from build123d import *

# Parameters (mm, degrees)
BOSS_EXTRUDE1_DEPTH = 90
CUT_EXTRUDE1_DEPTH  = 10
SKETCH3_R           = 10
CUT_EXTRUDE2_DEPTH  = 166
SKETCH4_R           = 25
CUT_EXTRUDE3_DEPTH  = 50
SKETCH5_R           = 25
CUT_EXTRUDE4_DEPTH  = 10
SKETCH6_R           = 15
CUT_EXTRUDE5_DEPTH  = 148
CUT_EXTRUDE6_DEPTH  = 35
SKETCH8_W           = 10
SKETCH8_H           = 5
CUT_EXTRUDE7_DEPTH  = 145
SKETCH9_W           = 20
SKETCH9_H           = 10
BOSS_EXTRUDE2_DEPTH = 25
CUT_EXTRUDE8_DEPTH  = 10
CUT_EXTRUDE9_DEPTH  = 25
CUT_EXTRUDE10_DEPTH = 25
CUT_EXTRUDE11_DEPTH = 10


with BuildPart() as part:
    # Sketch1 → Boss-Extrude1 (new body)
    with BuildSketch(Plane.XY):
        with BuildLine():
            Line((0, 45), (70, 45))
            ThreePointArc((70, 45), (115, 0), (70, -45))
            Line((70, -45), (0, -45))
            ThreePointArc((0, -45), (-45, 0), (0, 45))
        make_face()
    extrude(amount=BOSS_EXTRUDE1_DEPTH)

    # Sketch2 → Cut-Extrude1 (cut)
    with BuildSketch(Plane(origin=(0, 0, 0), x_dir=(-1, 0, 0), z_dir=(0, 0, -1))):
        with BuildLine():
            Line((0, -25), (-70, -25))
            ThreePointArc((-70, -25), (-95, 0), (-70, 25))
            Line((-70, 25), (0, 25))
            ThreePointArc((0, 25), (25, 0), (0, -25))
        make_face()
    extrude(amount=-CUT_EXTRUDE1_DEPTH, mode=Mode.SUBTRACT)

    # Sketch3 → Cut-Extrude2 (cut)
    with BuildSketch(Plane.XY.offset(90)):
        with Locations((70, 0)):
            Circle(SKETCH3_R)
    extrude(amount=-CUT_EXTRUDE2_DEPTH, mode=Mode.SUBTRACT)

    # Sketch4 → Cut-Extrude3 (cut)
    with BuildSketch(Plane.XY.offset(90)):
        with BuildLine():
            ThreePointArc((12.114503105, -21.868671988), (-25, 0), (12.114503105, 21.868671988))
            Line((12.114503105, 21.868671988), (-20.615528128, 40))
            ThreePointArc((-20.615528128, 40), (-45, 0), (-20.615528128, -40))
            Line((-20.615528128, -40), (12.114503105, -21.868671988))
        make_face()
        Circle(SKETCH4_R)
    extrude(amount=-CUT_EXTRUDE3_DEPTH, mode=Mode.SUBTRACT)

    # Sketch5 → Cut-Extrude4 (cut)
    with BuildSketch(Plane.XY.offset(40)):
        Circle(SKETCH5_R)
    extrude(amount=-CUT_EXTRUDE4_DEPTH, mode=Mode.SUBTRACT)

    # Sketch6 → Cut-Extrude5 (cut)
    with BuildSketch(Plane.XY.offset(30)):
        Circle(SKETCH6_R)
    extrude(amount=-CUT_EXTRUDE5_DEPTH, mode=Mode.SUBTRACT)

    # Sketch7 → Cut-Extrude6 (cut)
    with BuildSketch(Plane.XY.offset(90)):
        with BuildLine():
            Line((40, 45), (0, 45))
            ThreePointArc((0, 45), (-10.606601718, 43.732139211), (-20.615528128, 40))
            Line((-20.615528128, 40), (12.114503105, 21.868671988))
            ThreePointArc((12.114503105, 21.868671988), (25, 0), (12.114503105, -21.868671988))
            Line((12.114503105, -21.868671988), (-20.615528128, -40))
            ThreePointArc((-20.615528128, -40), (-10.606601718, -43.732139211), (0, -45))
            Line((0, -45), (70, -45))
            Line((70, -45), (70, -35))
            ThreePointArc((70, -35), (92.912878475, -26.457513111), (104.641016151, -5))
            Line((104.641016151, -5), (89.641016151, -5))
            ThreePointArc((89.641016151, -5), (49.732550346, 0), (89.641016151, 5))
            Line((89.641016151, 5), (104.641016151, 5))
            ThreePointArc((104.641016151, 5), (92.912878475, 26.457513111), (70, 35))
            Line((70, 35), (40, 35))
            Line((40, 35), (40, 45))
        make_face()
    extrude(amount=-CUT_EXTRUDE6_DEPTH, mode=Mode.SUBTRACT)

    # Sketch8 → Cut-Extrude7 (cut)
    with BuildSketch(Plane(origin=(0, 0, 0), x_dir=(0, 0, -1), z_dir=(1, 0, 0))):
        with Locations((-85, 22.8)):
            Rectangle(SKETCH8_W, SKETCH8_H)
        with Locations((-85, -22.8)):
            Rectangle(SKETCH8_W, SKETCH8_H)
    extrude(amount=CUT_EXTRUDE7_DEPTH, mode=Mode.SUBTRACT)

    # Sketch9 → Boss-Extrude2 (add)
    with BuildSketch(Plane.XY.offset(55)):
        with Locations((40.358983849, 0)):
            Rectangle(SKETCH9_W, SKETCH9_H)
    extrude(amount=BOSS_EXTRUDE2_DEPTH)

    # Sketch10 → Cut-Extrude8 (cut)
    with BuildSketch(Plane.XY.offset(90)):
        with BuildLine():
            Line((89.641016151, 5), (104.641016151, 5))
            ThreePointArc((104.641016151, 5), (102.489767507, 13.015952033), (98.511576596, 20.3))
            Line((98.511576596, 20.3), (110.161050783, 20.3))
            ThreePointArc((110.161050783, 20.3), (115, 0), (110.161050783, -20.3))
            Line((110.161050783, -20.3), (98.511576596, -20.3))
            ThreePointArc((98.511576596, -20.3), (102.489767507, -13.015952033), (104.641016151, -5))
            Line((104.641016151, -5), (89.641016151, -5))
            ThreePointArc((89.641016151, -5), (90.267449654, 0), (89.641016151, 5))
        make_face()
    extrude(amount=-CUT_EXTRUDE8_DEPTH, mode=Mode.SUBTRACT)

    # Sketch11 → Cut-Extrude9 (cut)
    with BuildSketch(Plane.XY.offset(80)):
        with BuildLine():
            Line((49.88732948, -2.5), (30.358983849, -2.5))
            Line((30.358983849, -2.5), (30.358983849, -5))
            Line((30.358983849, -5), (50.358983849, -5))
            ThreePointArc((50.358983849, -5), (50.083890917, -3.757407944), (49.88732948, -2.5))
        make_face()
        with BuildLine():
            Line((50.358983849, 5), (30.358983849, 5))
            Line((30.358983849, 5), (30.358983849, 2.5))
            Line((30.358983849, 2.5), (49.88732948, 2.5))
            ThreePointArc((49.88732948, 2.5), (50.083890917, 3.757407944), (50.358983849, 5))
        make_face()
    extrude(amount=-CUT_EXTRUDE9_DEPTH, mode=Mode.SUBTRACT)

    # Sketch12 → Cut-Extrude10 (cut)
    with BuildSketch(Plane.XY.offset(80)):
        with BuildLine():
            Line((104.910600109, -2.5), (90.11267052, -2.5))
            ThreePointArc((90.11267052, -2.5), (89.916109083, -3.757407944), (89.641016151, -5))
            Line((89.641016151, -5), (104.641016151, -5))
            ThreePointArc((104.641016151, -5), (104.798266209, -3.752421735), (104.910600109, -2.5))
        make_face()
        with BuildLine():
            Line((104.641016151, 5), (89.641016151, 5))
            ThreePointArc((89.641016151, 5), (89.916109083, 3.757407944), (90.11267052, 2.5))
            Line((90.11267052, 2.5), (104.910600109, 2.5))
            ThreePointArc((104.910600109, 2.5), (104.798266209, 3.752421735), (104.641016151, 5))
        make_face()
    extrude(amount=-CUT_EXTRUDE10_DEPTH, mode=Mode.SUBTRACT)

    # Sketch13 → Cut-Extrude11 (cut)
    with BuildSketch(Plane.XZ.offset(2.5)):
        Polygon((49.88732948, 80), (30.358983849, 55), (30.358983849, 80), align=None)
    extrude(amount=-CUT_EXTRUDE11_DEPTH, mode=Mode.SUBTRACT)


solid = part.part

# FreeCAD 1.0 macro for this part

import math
import FreeCAD as App
import Part
import Sketcher
Q = App.Units.Quantity

doc = App.newDocument("Part")
body = doc.addObject("PartDesign::Body", "Body")

sketch1 = body.newObject("Sketcher::SketchObject", "Sketch")
sketch1.AttachmentSupport = (doc.getObject("XY_Plane"), [""])
sketch1.MapMode = "FlatFace"
sketch1.addGeometry(Part.LineSegment(App.Vector(70, 45, 0), App.Vector(0, 45, 0)), False)
sketch1.addGeometry(Part.ArcOfCircle(Part.Circle(App.Vector(0, 0, 0), App.Vector(0, 0, 1), 45), math.radians(90), math.radians(270)), False)
sketch1.addGeometry(Part.LineSegment(App.Vector(0, -45, 0), App.Vector(70, -45, 0)), False)
sketch1.addGeometry(Part.ArcOfCircle(Part.Circle(App.Vector(70, 0, 0), App.Vector(0, 0, 1), 45), math.radians(-90), math.radians(90)), False)
sketch1.addConstraint(Sketcher.Constraint("Tangent", 0, 2, 1, 1))
sketch1.addConstraint(Sketcher.Constraint("Tangent", 1, 2, 2, 1))
sketch1.addConstraint(Sketcher.Constraint("Tangent", 2, 2, 3, 1))
sketch1.addConstraint(Sketcher.Constraint("Tangent", 3, 2, 0, 1))
sketch1.addConstraint(Sketcher.Constraint("Horizontal", 0))
sketch1.addConstraint(Sketcher.Constraint("Horizontal", 2))
sketch1.addConstraint(Sketcher.Constraint("Coincident", 1, 3, -1, 1))
sketch1.addConstraint(Sketcher.Constraint("Radius", 1, Q("45 mm")))
sketch1.addConstraint(Sketcher.Constraint("DistanceX", 0, 2, 0, 1, Q("70 mm")))
pad1 = body.newObject("PartDesign::Pad", "Pad")
pad1.Profile = sketch1
pad1.Length = 90

sketch2 = body.newObject("Sketcher::SketchObject", "Sketch001")
sketch2.AttachmentSupport = (doc.getObject("XY_Plane"), [""])
sketch2.MapMode = "FlatFace"
sketch2.addGeometry(Part.LineSegment(App.Vector(70, -25, 0), App.Vector(0, -25, 0)), False)
sketch2.addGeometry(Part.ArcOfCircle(Part.Circle(App.Vector(0, 0, 0), App.Vector(0, 0, 1), 25), math.radians(90), math.radians(270)), False)
sketch2.addGeometry(Part.LineSegment(App.Vector(0, 25, 0), App.Vector(70, 25, 0)), False)
sketch2.addGeometry(Part.ArcOfCircle(Part.Circle(App.Vector(70, 0, 0), App.Vector(0, 0, 1), 25), math.radians(-90), math.radians(90)), False)
sketch2.addConstraint(Sketcher.Constraint("Tangent", 0, 2, 1, 2))
sketch2.addConstraint(Sketcher.Constraint("Tangent", 1, 1, 2, 1))
sketch2.addConstraint(Sketcher.Constraint("Tangent", 2, 2, 3, 2))
sketch2.addConstraint(Sketcher.Constraint("Tangent", 3, 1, 0, 1))
sketch2.addConstraint(Sketcher.Constraint("Horizontal", 0))
sketch2.addConstraint(Sketcher.Constraint("Horizontal", 2))
sketch2.addConstraint(Sketcher.Constraint("Coincident", 1, 3, -1, 1))
sketch2.addConstraint(Sketcher.Constraint("Radius", 1, Q("25 mm")))
sketch2.addConstraint(Sketcher.Constraint("DistanceX", 0, 2, 0, 1, Q("70 mm")))
pocket1 = body.newObject("PartDesign::Pocket", "Pocket")
pocket1.Profile = sketch2
pocket1.Length = 10
pocket1.Reversed = True

sketch3 = body.newObject("Sketcher::SketchObject", "Sketch002")
sketch3.AttachmentSupport = (doc.getObject("XY_Plane"), [""])
sketch3.MapMode = "FlatFace"
sketch3.AttachmentOffset = App.Placement(App.Vector(0, 0, 90), App.Rotation())
sketch3.addGeometry(Part.Circle(App.Vector(70, 0, 0), App.Vector(0, 0, 1), 10), False)
sketch3.addConstraint(Sketcher.Constraint("PointOnObject", 0, 3, -1))
sketch3.addConstraint(Sketcher.Constraint("Diameter", 0, Q("20 mm")))
sketch3.addConstraint(Sketcher.Constraint("DistanceX", -1, 1, 0, 3, Q("70 mm")))
pocket2 = body.newObject("PartDesign::Pocket", "Pocket001")
pocket2.Profile = sketch3
pocket2.Length = 166

sketch4 = body.newObject("Sketcher::SketchObject", "Sketch003")
sketch4.AttachmentSupport = (doc.getObject("XY_Plane"), [""])
sketch4.MapMode = "FlatFace"
sketch4.AttachmentOffset = App.Placement(App.Vector(0, 0, 90), App.Rotation())
sketch4.addGeometry(Part.LineSegment(App.Vector(12, 22, 0), App.Vector(-21, 40, 0)), False)
sketch4.addGeometry(Part.ArcOfCircle(Part.Circle(App.Vector(0, 0, 0), App.Vector(0, 0, 1), 45), math.radians(117), math.radians(243)), False)
sketch4.addGeometry(Part.LineSegment(App.Vector(-21, -40, 0), App.Vector(12, -22, 0)), False)
sketch4.addGeometry(Part.ArcOfCircle(Part.Circle(App.Vector(0, 0, 0), App.Vector(0, 0, 1), 25), math.radians(-61), math.radians(61)), False)
sketch4.addConstraint(Sketcher.Constraint("Coincident", 0, 2, 1, 1))
sketch4.addConstraint(Sketcher.Constraint("Coincident", 1, 2, 2, 1))
sketch4.addConstraint(Sketcher.Constraint("Tangent", 2, 2, 3, 1))
sketch4.addConstraint(Sketcher.Constraint("Tangent", 3, 2, 0, 1))
sketch4.addConstraint(Sketcher.Constraint("Coincident", 1, 3, -1, 1))
sketch4.addConstraint(Sketcher.Constraint("Coincident", 3, 3, -1, 1))
sketch4.addConstraint(Sketcher.Constraint("Vertical", 0, 2, 1, 2))
sketch4.addConstraint(Sketcher.Constraint("Radius", 1, Q("45 mm")))
sketch4.addConstraint(Sketcher.Constraint("Radius", 3, Q("25 mm")))
sketch4.addConstraint(Sketcher.Constraint("DistanceY", -1, 1, 0, 2, Q("40 mm")))
pocket3 = body.newObject("PartDesign::Pocket", "Pocket002")
pocket3.Profile = sketch4
pocket3.Length = 50

sketch5 = body.newObject("Sketcher::SketchObject", "Sketch004")
sketch5.AttachmentSupport = (doc.getObject("XY_Plane"), [""])
sketch5.MapMode = "FlatFace"
sketch5.AttachmentOffset = App.Placement(App.Vector(0, 0, 40), App.Rotation())
sketch5.addGeometry(Part.Circle(App.Vector(0, 0, 0), App.Vector(0, 0, 1), 25), False)
sketch5.addConstraint(Sketcher.Constraint("Coincident", 0, 3, -1, 1))
sketch5.addConstraint(Sketcher.Constraint("Diameter", 0, Q("50 mm")))
pocket4 = body.newObject("PartDesign::Pocket", "Pocket003")
pocket4.Profile = sketch5
pocket4.Length = 10

sketch6 = body.newObject("Sketcher::SketchObject", "Sketch005")
sketch6.AttachmentSupport = (doc.getObject("XY_Plane"), [""])
sketch6.MapMode = "FlatFace"
sketch6.AttachmentOffset = App.Placement(App.Vector(0, 0, 30), App.Rotation())
sketch6.addGeometry(Part.Circle(App.Vector(0, 0, 0), App.Vector(0, 0, 1), 15), False)
sketch6.addConstraint(Sketcher.Constraint("Coincident", 0, 3, -1, 1))
sketch6.addConstraint(Sketcher.Constraint("Diameter", 0, Q("30 mm")))
pocket5 = body.newObject("PartDesign::Pocket", "Pocket004")
pocket5.Profile = sketch6
pocket5.Length = 148

sketch7 = body.newObject("Sketcher::SketchObject", "Sketch006")
sketch7.AttachmentSupport = (doc.getObject("XY_Plane"), [""])
sketch7.MapMode = "FlatFace"
sketch7.AttachmentOffset = App.Placement(App.Vector(0, 0, 90), App.Rotation())
sketch7.addGeometry(Part.LineSegment(App.Vector(40, 45, 0), App.Vector(0, 45, 0)), False)
sketch7.addGeometry(Part.ArcOfCircle(Part.Circle(App.Vector(0, 0, 0), App.Vector(0, 0, 1), 45), math.radians(90), math.radians(117)), False)
sketch7.addGeometry(Part.LineSegment(App.Vector(-21, 40, 0), App.Vector(12, 22, 0)), False)
sketch7.addGeometry(Part.ArcOfCircle(Part.Circle(App.Vector(0, 0, 0), App.Vector(0, 0, 1), 25), math.radians(-61), math.radians(61)), False)
sketch7.addGeometry(Part.LineSegment(App.Vector(12, -22, 0), App.Vector(-21, -40, 0)), False)
sketch7.addGeometry(Part.ArcOfCircle(Part.Circle(App.Vector(0, 0, 0), App.Vector(0, 0, 1), 45), math.radians(-117), math.radians(-90)), False)
sketch7.addGeometry(Part.LineSegment(App.Vector(0, -45, 0), App.Vector(70, -45, 0)), False)
sketch7.addGeometry(Part.LineSegment(App.Vector(70, -45, 0), App.Vector(70, -35, 0)), False)
sketch7.addGeometry(Part.ArcOfCircle(Part.Circle(App.Vector(70, 0, 0), App.Vector(0, 0, 1), 35), math.radians(-90), math.radians(-8)), False)
sketch7.addGeometry(Part.LineSegment(App.Vector(105, -5, 0), App.Vector(90, -5, 0)), False)
sketch7.addGeometry(Part.ArcOfCircle(Part.Circle(App.Vector(70, 0, 0), App.Vector(0, 0, 1), 20), math.radians(14), math.radians(346)), False)
sketch7.addGeometry(Part.LineSegment(App.Vector(90, 5, 0), App.Vector(105, 5, 0)), False)
sketch7.addGeometry(Part.ArcOfCircle(Part.Circle(App.Vector(70, 0, 0), App.Vector(0, 0, 1), 35), math.radians(8), math.radians(90)), False)
sketch7.addGeometry(Part.LineSegment(App.Vector(70, 35, 0), App.Vector(40, 35, 0)), False)
sketch7.addGeometry(Part.LineSegment(App.Vector(40, 35, 0), App.Vector(40, 45, 0)), False)
sketch7.addConstraint(Sketcher.Constraint("Tangent", 0, 2, 1, 1))
sketch7.addConstraint(Sketcher.Constraint("Coincident", 1, 2, 2, 1))
sketch7.addConstraint(Sketcher.Constraint("Tangent", 2, 2, 3, 2))
sketch7.addConstraint(Sketcher.Constraint("Tangent", 3, 1, 4, 1))
sketch7.addConstraint(Sketcher.Constraint("Coincident", 4, 2, 5, 1))
sketch7.addConstraint(Sketcher.Constraint("Tangent", 5, 2, 6, 1))
sketch7.addConstraint(Sketcher.Constraint("Coincident", 6, 2, 7, 1))
sketch7.addConstraint(Sketcher.Constraint("Coincident", 7, 2, 8, 1))
sketch7.addConstraint(Sketcher.Constraint("Coincident", 8, 2, 9, 1))
sketch7.addConstraint(Sketcher.Constraint("Coincident", 9, 2, 10, 2))
sketch7.addConstraint(Sketcher.Constraint("Coincident", 10, 1, 11, 1))
sketch7.addConstraint(Sketcher.Constraint("Coincident", 11, 2, 12, 1))
sketch7.addConstraint(Sketcher.Constraint("Tangent", 12, 2, 13, 1))
sketch7.addConstraint(Sketcher.Constraint("Coincident", 13, 2, 14, 1))
sketch7.addConstraint(Sketcher.Constraint("Coincident", 14, 2, 0, 1))
sketch7.addConstraint(Sketcher.Constraint("Horizontal", 0))
sketch7.addConstraint(Sketcher.Constraint("Horizontal", 6))
sketch7.addConstraint(Sketcher.Constraint("Vertical", 7))
sketch7.addConstraint(Sketcher.Constraint("Horizontal", 9))
sketch7.addConstraint(Sketcher.Constraint("Horizontal", 11))
sketch7.addConstraint(Sketcher.Constraint("Horizontal", 13))
sketch7.addConstraint(Sketcher.Constraint("Vertical", 14))
sketch7.addConstraint(Sketcher.Constraint("Coincident", 1, 3, -1, 1))
sketch7.addConstraint(Sketcher.Constraint("Coincident", 3, 3, -1, 1))
sketch7.addConstraint(Sketcher.Constraint("Coincident", 5, 3, -1, 1))
sketch7.addConstraint(Sketcher.Constraint("Coincident", 10, 3, 8, 3))
sketch7.addConstraint(Sketcher.Constraint("Coincident", 12, 3, 8, 3))
sketch7.addConstraint(Sketcher.Constraint("Equal", 1, 5))
sketch7.addConstraint(Sketcher.Constraint("Equal", 8, 12))
sketch7.addConstraint(Sketcher.Constraint("Symmetric", 9, 2, 10, 1, -1))
sketch7.addConstraint(Sketcher.Constraint("Vertical", 2, 2, 3, 1))
sketch7.addConstraint(Sketcher.Constraint("Vertical", 12, 3, 6, 2))
sketch7.addConstraint(Sketcher.Constraint("Radius", 1, Q("45 mm")))
sketch7.addConstraint(Sketcher.Constraint("Radius", 3, Q("25 mm")))
sketch7.addConstraint(Sketcher.Constraint("Radius", 8, Q("35 mm")))
sketch7.addConstraint(Sketcher.Constraint("DistanceX", 0, 2, 0, 1, Q("40 mm")))
sketch7.addConstraint(Sketcher.Constraint("DistanceX", 6, 1, 6, 2, Q("70 mm")))
sketch7.addConstraint(Sketcher.Constraint("DistanceX", 9, 2, 9, 1, Q("15 mm")))
sketch7.addConstraint(Sketcher.Constraint("DistanceY", -1, 1, 1, 2, Q("40 mm")))
sketch7.addConstraint(Sketcher.Constraint("DistanceY", 8, 2, -1, 1, Q("5 mm")))
pocket6 = body.newObject("PartDesign::Pocket", "Pocket005")
pocket6.Profile = sketch7
pocket6.Length = 35

sketch8 = body.newObject("Sketcher::SketchObject", "Sketch007")
sketch8.AttachmentSupport = (doc.getObject("YZ_Plane"), [""])
sketch8.MapMode = "FlatFace"
sketch8.addGeometry(Part.LineSegment(App.Vector(25, 90, 0), App.Vector(20, 90, 0)), False)
sketch8.addGeometry(Part.LineSegment(App.Vector(20, 90, 0), App.Vector(20, 80, 0)), False)
sketch8.addGeometry(Part.LineSegment(App.Vector(20, 80, 0), App.Vector(25, 80, 0)), False)
sketch8.addGeometry(Part.LineSegment(App.Vector(25, 80, 0), App.Vector(25, 90, 0)), False)
sketch8.addGeometry(Part.LineSegment(App.Vector(-20, 90, 0), App.Vector(-25, 90, 0)), False)
sketch8.addGeometry(Part.LineSegment(App.Vector(-25, 90, 0), App.Vector(-25, 80, 0)), False)
sketch8.addGeometry(Part.LineSegment(App.Vector(-25, 80, 0), App.Vector(-20, 80, 0)), False)
sketch8.addGeometry(Part.LineSegment(App.Vector(-20, 80, 0), App.Vector(-20, 90, 0)), False)
sketch8.addConstraint(Sketcher.Constraint("Coincident", 0, 2, 1, 1))
sketch8.addConstraint(Sketcher.Constraint("Coincident", 1, 2, 2, 1))
sketch8.addConstraint(Sketcher.Constraint("Coincident", 2, 2, 3, 1))
sketch8.addConstraint(Sketcher.Constraint("Coincident", 3, 2, 0, 1))
sketch8.addConstraint(Sketcher.Constraint("Coincident", 4, 2, 5, 1))
sketch8.addConstraint(Sketcher.Constraint("Coincident", 5, 2, 6, 1))
sketch8.addConstraint(Sketcher.Constraint("Coincident", 6, 2, 7, 1))
sketch8.addConstraint(Sketcher.Constraint("Coincident", 7, 2, 4, 1))
sketch8.addConstraint(Sketcher.Constraint("Horizontal", 0))
sketch8.addConstraint(Sketcher.Constraint("Vertical", 1))
sketch8.addConstraint(Sketcher.Constraint("Horizontal", 2))
sketch8.addConstraint(Sketcher.Constraint("Vertical", 3))
sketch8.addConstraint(Sketcher.Constraint("Horizontal", 4))
sketch8.addConstraint(Sketcher.Constraint("Vertical", 5))
sketch8.addConstraint(Sketcher.Constraint("Horizontal", 6))
sketch8.addConstraint(Sketcher.Constraint("Vertical", 7))
sketch8.addConstraint(Sketcher.Constraint("Symmetric", 3, 2, 4, 2, -2))
sketch8.addConstraint(Sketcher.Constraint("Symmetric", 1, 2, 6, 2, -2))
sketch8.addConstraint(Sketcher.Constraint("DistanceX", 0, 2, 0, 1, Q("5 mm")))
sketch8.addConstraint(Sketcher.Constraint("DistanceY", 1, 2, 1, 1, Q("10 mm")))
sketch8.addConstraint(Sketcher.Constraint("DistanceY", -1, 1, 0, 2, Q("90 mm")))
sketch8.addConstraint(Sketcher.Constraint("DistanceX", -1, 1, 0, 2, Q("20.3 mm")))
pocket7 = body.newObject("PartDesign::Pocket", "Pocket006")
pocket7.Profile = sketch8
pocket7.Length = 145
pocket7.Reversed = True

sketch9 = body.newObject("Sketcher::SketchObject", "Sketch008")
sketch9.AttachmentSupport = (doc.getObject("XY_Plane"), [""])
sketch9.MapMode = "FlatFace"
sketch9.AttachmentOffset = App.Placement(App.Vector(0, 0, 55), App.Rotation())
sketch9.addGeometry(Part.LineSegment(App.Vector(30, 5, 0), App.Vector(30, -5, 0)), False)
sketch9.addGeometry(Part.LineSegment(App.Vector(30, -5, 0), App.Vector(50, -5, 0)), False)
sketch9.addGeometry(Part.LineSegment(App.Vector(50, -5, 0), App.Vector(50, 5, 0)), False)
sketch9.addGeometry(Part.LineSegment(App.Vector(50, 5, 0), App.Vector(30, 5, 0)), False)
sketch9.addConstraint(Sketcher.Constraint("Coincident", 0, 2, 1, 1))
sketch9.addConstraint(Sketcher.Constraint("Coincident", 1, 2, 2, 1))
sketch9.addConstraint(Sketcher.Constraint("Coincident", 2, 2, 3, 1))
sketch9.addConstraint(Sketcher.Constraint("Coincident", 3, 2, 0, 1))
sketch9.addConstraint(Sketcher.Constraint("Vertical", 0))
sketch9.addConstraint(Sketcher.Constraint("Horizontal", 1))
sketch9.addConstraint(Sketcher.Constraint("Vertical", 2))
sketch9.addConstraint(Sketcher.Constraint("Horizontal", 3))
sketch9.addConstraint(Sketcher.Constraint("DistanceX", 1, 1, 1, 2, Q("20 mm")))
sketch9.addConstraint(Sketcher.Constraint("DistanceY", 0, 2, 0, 1, Q("10 mm")))
sketch9.addConstraint(Sketcher.Constraint("DistanceY", 0, 2, -1, 1, Q("5 mm")))
sketch9.addConstraint(Sketcher.Constraint("DistanceX", -1, 1, 0, 2, Q("30.358984 mm")))
pad2 = body.newObject("PartDesign::Pad", "Pad001")
pad2.Profile = sketch9
pad2.Length = 25

sketch10 = body.newObject("Sketcher::SketchObject", "Sketch009")
sketch10.AttachmentSupport = (doc.getObject("XY_Plane"), [""])
sketch10.MapMode = "FlatFace"
sketch10.AttachmentOffset = App.Placement(App.Vector(0, 0, 90), App.Rotation())
sketch10.addGeometry(Part.LineSegment(App.Vector(105, 5, 0), App.Vector(90, 5, 0)), False)
sketch10.addGeometry(Part.ArcOfCircle(Part.Circle(App.Vector(70, 0, 0), App.Vector(0, 0, 1), 20), math.radians(-14), math.radians(14)), False)
sketch10.addGeometry(Part.LineSegment(App.Vector(90, -5, 0), App.Vector(105, -5, 0)), False)
sketch10.addGeometry(Part.ArcOfCircle(Part.Circle(App.Vector(70, 0, 0), App.Vector(0, 0, 1), 35), math.radians(-35), math.radians(-8)), False)
sketch10.addGeometry(Part.LineSegment(App.Vector(99, -20, 0), App.Vector(110, -20, 0)), False)
sketch10.addGeometry(Part.ArcOfCircle(Part.Circle(App.Vector(70, 0, 0), App.Vector(0, 0, 1), 45), math.radians(-27), math.radians(27)), False)
sketch10.addGeometry(Part.LineSegment(App.Vector(110, 20, 0), App.Vector(99, 20, 0)), False)
sketch10.addGeometry(Part.ArcOfCircle(Part.Circle(App.Vector(70, 0, 0), App.Vector(0, 0, 1), 35), math.radians(8), math.radians(35)), False)
sketch10.addConstraint(Sketcher.Constraint("Coincident", 0, 2, 1, 2))
sketch10.addConstraint(Sketcher.Constraint("Coincident", 1, 1, 2, 1))
sketch10.addConstraint(Sketcher.Constraint("Coincident", 2, 2, 3, 2))
sketch10.addConstraint(Sketcher.Constraint("Coincident", 3, 1, 4, 1))
sketch10.addConstraint(Sketcher.Constraint("Coincident", 4, 2, 5, 1))
sketch10.addConstraint(Sketcher.Constraint("Coincident", 5, 2, 6, 1))
sketch10.addConstraint(Sketcher.Constraint("Coincident", 6, 2, 7, 2))
sketch10.addConstraint(Sketcher.Constraint("Coincident", 7, 1, 0, 1))
sketch10.addConstraint(Sketcher.Constraint("Horizontal", 0))
sketch10.addConstraint(Sketcher.Constraint("Horizontal", 2))
sketch10.addConstraint(Sketcher.Constraint("Horizontal", 4))
sketch10.addConstraint(Sketcher.Constraint("Horizontal", 6))
sketch10.addConstraint(Sketcher.Constraint("Coincident", 3, 3, 1, 3))
sketch10.addConstraint(Sketcher.Constraint("Coincident", 5, 3, 1, 3))
sketch10.addConstraint(Sketcher.Constraint("Coincident", 7, 3, 1, 3))
sketch10.addConstraint(Sketcher.Constraint("Equal", 3, 7))
sketch10.addConstraint(Sketcher.Constraint("Symmetric", 0, 2, 1, 1, -1))
sketch10.addConstraint(Sketcher.Constraint("Vertical", 4, 2, 5, 2))
sketch10.addConstraint(Sketcher.Constraint("Radius", 3, Q("35 mm")))
sketch10.addConstraint(Sketcher.Constraint("Radius", 5, Q("45 mm")))
sketch10.addConstraint(Sketcher.Constraint("DistanceX", 0, 2, 0, 1, Q("15 mm")))
sketch10.addConstraint(Sketcher.Constraint("DistanceX", -1, 1, 1, 3, Q("70 mm")))
sketch10.addConstraint(Sketcher.Constraint("DistanceY", -1, 1, 0, 2, Q("5 mm")))
sketch10.addConstraint(Sketcher.Constraint("DistanceY", 3, 1, -1, 1, Q("20.3 mm")))
pocket8 = body.newObject("PartDesign::Pocket", "Pocket007")
pocket8.Profile = sketch10
pocket8.Length = 10

sketch11 = body.newObject("Sketcher::SketchObject", "Sketch010")
sketch11.AttachmentSupport = (doc.getObject("XY_Plane"), [""])
sketch11.MapMode = "FlatFace"
sketch11.AttachmentOffset = App.Placement(App.Vector(0, 0, 80), App.Rotation())
sketch11.addGeometry(Part.LineSegment(App.Vector(49.9, -2.5, 0), App.Vector(30.4, -2.5, 0)), False)
sketch11.addGeometry(Part.LineSegment(App.Vector(30.4, -2.5, 0), App.Vector(30.4, -5, 0)), False)
sketch11.addGeometry(Part.LineSegment(App.Vector(30.4, -5, 0), App.Vector(50.4, -5, 0)), False)
sketch11.addGeometry(Part.ArcOfCircle(Part.Circle(App.Vector(70, 0, 0), App.Vector(0, 0, 1), 20.3), math.radians(-172.91), math.radians(-165.72)), False)
sketch11.addGeometry(Part.LineSegment(App.Vector(50.4, 5, 0), App.Vector(30.4, 5, 0)), False)
sketch11.addGeometry(Part.LineSegment(App.Vector(30.4, 5, 0), App.Vector(30.4, 2.5, 0)), False)
sketch11.addGeometry(Part.LineSegment(App.Vector(30.4, 2.5, 0), App.Vector(49.9, 2.5, 0)), False)
sketch11.addGeometry(Part.ArcOfCircle(Part.Circle(App.Vector(70, 0, 0), App.Vector(0, 0, 1), 20.3), math.radians(165.72), math.radians(172.91)), False)
sketch11.addConstraint(Sketcher.Constraint("Coincident", 0, 2, 1, 1))
sketch11.addConstraint(Sketcher.Constraint("Coincident", 1, 2, 2, 1))
sketch11.addConstraint(Sketcher.Constraint("Coincident", 2, 2, 3, 2))
sketch11.addConstraint(Sketcher.Constraint("Coincident", 3, 1, 0, 1))
sketch11.addConstraint(Sketcher.Constraint("Coincident", 4, 2, 5, 1))
sketch11.addConstraint(Sketcher.Constraint("Coincident", 5, 2, 6, 1))
sketch11.addConstraint(Sketcher.Constraint("Coincident", 6, 2, 7, 2))
sketch11.addConstraint(Sketcher.Constraint("Coincident", 7, 1, 4, 1))
sketch11.addConstraint(Sketcher.Constraint("Horizontal", 0))
sketch11.addConstraint(Sketcher.Constraint("Vertical", 1))
sketch11.addConstraint(Sketcher.Constraint("Horizontal", 2))
sketch11.addConstraint(Sketcher.Constraint("Horizontal", 4))
sketch11.addConstraint(Sketcher.Constraint("Vertical", 5))
sketch11.addConstraint(Sketcher.Constraint("Horizontal", 6))
sketch11.addConstraint(Sketcher.Constraint("Coincident", 7, 3, 3, 3))
sketch11.addConstraint(Sketcher.Constraint("Equal", 3, 7))
sketch11.addConstraint(Sketcher.Constraint("Symmetric", 1, 2, 4, 2, -1))
sketch11.addConstraint(Sketcher.Constraint("Symmetric", 3, 1, 6, 2, -1))
sketch11.addConstraint(Sketcher.Constraint("DistanceX", 2, 1, 2, 2, Q("20 mm")))
sketch11.addConstraint(Sketcher.Constraint("DistanceY", 1, 2, 1, 1, Q("2.5 mm")))
sketch11.addConstraint(Sketcher.Constraint("DistanceX", -1, 1, 3, 3, Q("70 mm")))
sketch11.addConstraint(Sketcher.Constraint("DistanceY", 1, 2, -1, 1, Q("5 mm")))
sketch11.addConstraint(Sketcher.Constraint("Radius", 3, Q("20.267449 mm")))
pocket9 = body.newObject("PartDesign::Pocket", "Pocket008")
pocket9.Profile = sketch11
pocket9.Length = 25

sketch12 = body.newObject("Sketcher::SketchObject", "Sketch011")
sketch12.AttachmentSupport = (doc.getObject("XY_Plane"), [""])
sketch12.MapMode = "FlatFace"
sketch12.AttachmentOffset = App.Placement(App.Vector(0, 0, 80), App.Rotation())
sketch12.addGeometry(Part.LineSegment(App.Vector(104.9, -2.5, 0), App.Vector(90.1, -2.5, 0)), False)
sketch12.addGeometry(Part.ArcOfCircle(Part.Circle(App.Vector(70, 0, 0), App.Vector(0, 0, 1), 20.3), math.radians(-14.28), math.radians(-7.09)), False)
sketch12.addGeometry(Part.LineSegment(App.Vector(89.6, -5, 0), App.Vector(104.6, -5, 0)), False)
sketch12.addGeometry(Part.ArcOfCircle(Part.Circle(App.Vector(70, 0, 0), App.Vector(0, 0, 1), 35), math.radians(-8.21), math.radians(-4.1)), False)
sketch12.addGeometry(Part.LineSegment(App.Vector(104.6, 5, 0), App.Vector(89.6, 5, 0)), False)
sketch12.addGeometry(Part.ArcOfCircle(Part.Circle(App.Vector(70, 0, 0), App.Vector(0, 0, 1), 20.3), math.radians(7.09), math.radians(14.28)), False)
sketch12.addGeometry(Part.LineSegment(App.Vector(90.1, 2.5, 0), App.Vector(104.9, 2.5, 0)), False)
sketch12.addGeometry(Part.ArcOfCircle(Part.Circle(App.Vector(70, 0, 0), App.Vector(0, 0, 1), 35), math.radians(4.1), math.radians(8.21)), False)
sketch12.addConstraint(Sketcher.Constraint("Coincident", 0, 2, 1, 2))
sketch12.addConstraint(Sketcher.Constraint("Coincident", 1, 1, 2, 1))
sketch12.addConstraint(Sketcher.Constraint("Coincident", 2, 2, 3, 1))
sketch12.addConstraint(Sketcher.Constraint("Coincident", 3, 2, 0, 1))
sketch12.addConstraint(Sketcher.Constraint("Coincident", 4, 2, 5, 2))
sketch12.addConstraint(Sketcher.Constraint("Coincident", 5, 1, 6, 1))
sketch12.addConstraint(Sketcher.Constraint("Coincident", 6, 2, 7, 1))
sketch12.addConstraint(Sketcher.Constraint("Coincident", 7, 2, 4, 1))
sketch12.addConstraint(Sketcher.Constraint("Horizontal", 0))
sketch12.addConstraint(Sketcher.Constraint("Horizontal", 2))
sketch12.addConstraint(Sketcher.Constraint("Horizontal", 4))
sketch12.addConstraint(Sketcher.Constraint("Horizontal", 6))
sketch12.addConstraint(Sketcher.Constraint("Coincident", 3, 3, 1, 3))
sketch12.addConstraint(Sketcher.Constraint("Coincident", 5, 3, 1, 3))
sketch12.addConstraint(Sketcher.Constraint("Coincident", 7, 3, 1, 3))
sketch12.addConstraint(Sketcher.Constraint("Equal", 1, 5))
sketch12.addConstraint(Sketcher.Constraint("Equal", 3, 7))
sketch12.addConstraint(Sketcher.Constraint("Symmetric", 1, 1, 4, 2, -1))
sketch12.addConstraint(Sketcher.Constraint("Vertical", 0, 2, 5, 1))
sketch12.addConstraint(Sketcher.Constraint("Radius", 3, Q("34.999999 mm")))
sketch12.addConstraint(Sketcher.Constraint("DistanceX", 2, 1, 2, 2, Q("15 mm")))
sketch12.addConstraint(Sketcher.Constraint("DistanceX", -1, 1, 1, 3, Q("70 mm")))
sketch12.addConstraint(Sketcher.Constraint("DistanceY", 1, 1, -1, 1, Q("5 mm")))
sketch12.addConstraint(Sketcher.Constraint("DistanceY", 0, 2, 5, 1, Q("5 mm")))
pocket10 = body.newObject("PartDesign::Pocket", "Pocket009")
pocket10.Profile = sketch12
pocket10.Length = 25

sketch13 = body.newObject("Sketcher::SketchObject", "Sketch012")
sketch13.AttachmentSupport = (doc.getObject("XZ_Plane"), [""])
sketch13.MapMode = "FlatFace"
sketch13.AttachmentOffset = App.Placement(App.Vector(0, 0, 2.5), App.Rotation())
sketch13.addGeometry(Part.LineSegment(App.Vector(30, 55, 0), App.Vector(50, 80, 0)), False)
sketch13.addGeometry(Part.LineSegment(App.Vector(50, 80, 0), App.Vector(30, 80, 0)), False)
sketch13.addGeometry(Part.LineSegment(App.Vector(30, 80, 0), App.Vector(30, 55, 0)), False)
sketch13.addConstraint(Sketcher.Constraint("Coincident", 0, 2, 1, 1))
sketch13.addConstraint(Sketcher.Constraint("Coincident", 1, 2, 2, 1))
sketch13.addConstraint(Sketcher.Constraint("Coincident", 2, 2, 0, 1))
sketch13.addConstraint(Sketcher.Constraint("Horizontal", 1))
sketch13.addConstraint(Sketcher.Constraint("Vertical", 2))
sketch13.addConstraint(Sketcher.Constraint("DistanceY", 2, 2, 2, 1, Q("25 mm")))
sketch13.addConstraint(Sketcher.Constraint("DistanceY", -1, 1, 0, 2, Q("80 mm")))
sketch13.addConstraint(Sketcher.Constraint("Distance", 0, Q("31.723119 mm")))
sketch13.addConstraint(Sketcher.Constraint("DistanceX", -1, 1, 0, 2, Q("49.887329 mm")))
pocket11 = body.newObject("PartDesign::Pocket", "Pocket010")
pocket11.Profile = sketch13
pocket11.Length = 10

doc.recompute()
